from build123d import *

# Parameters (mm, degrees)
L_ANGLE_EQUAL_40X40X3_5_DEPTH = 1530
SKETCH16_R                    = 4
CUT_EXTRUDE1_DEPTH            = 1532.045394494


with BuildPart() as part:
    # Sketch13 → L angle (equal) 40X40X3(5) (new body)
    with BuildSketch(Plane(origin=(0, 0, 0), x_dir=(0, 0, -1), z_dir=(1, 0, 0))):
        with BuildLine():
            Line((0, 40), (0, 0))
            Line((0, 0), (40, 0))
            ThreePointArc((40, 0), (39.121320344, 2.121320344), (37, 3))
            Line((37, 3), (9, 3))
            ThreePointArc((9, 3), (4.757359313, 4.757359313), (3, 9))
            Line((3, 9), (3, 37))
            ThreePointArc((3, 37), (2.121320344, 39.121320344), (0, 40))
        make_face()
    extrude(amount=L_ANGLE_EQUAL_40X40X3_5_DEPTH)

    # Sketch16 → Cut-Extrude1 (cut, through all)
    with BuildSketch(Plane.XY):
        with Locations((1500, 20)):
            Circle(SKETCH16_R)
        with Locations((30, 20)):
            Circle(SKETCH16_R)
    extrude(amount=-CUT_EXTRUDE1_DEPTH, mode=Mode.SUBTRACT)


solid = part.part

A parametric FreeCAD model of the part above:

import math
import FreeCAD as App
import Part
import Sketcher

V = App.Vector

doc = App.newDocument("Part")
body = doc.addObject("PartDesign::Body", "Body")

sketch1 = body.newObject("Sketcher::SketchObject", "Sketch")
sketch1.AttachmentSupport = (doc.getObject("YZ_Plane"), [""])
sketch1.MapMode = "FlatFace"
sketch1.addGeometry([
    Part.LineSegment(V(40, 0, 0), V(0, 0, 0)),
    Part.LineSegment(V(0, 0, 0), V(0, -40, 0)),
    Part.ArcOfCircle(Part.Circle(V(0, -37, 0), V(0, 0, 1), 3), math.radians(-90), math.radians(0)),
    Part.LineSegment(V(3, -37, 0), V(3, -9, 0)),
    Part.ArcOfCircle(Part.Circle(V(9, -9, 0), V(0, 0, 1), 6), math.radians(90), math.radians(180)),
    Part.LineSegment(V(9, -3, 0), V(37, -3, 0)),
    Part.ArcOfCircle(Part.Circle(V(37, 0, 0), V(0, 0, 1), 3), math.radians(-90), math.radians(0)),
], False)
sketch1.addConstraint([
    Sketcher.Constraint("Coincident", 0, 2, 1, 1),
    Sketcher.Constraint("Coincident", 1, 2, 2, 1),
    Sketcher.Constraint("Tangent", 2, 2, 3, 1),
    Sketcher.Constraint("Tangent", 3, 2, 4, 2),
    Sketcher.Constraint("Tangent", 4, 1, 5, 1),
    Sketcher.Constraint("Tangent", 5, 2, 6, 1),
    Sketcher.Constraint("Coincident", 6, 2, 0, 1),
    Sketcher.Constraint("Horizontal", 0),
    Sketcher.Constraint("Vertical", 1),
    Sketcher.Constraint("Vertical", 3),
    Sketcher.Constraint("Horizontal", 5),
    Sketcher.Constraint("Coincident", 0, 2, -1, 1),
    Sketcher.Constraint("Equal", 2, 6),
    Sketcher.Constraint("PointOnObject", 2, 3, -2),
    Sketcher.Constraint("PointOnObject", 6, 3, -1),
    Sketcher.Constraint("Equal", 0, 1),
    Sketcher.Constraint("Radius", 2, 3.0),
    Sketcher.Constraint("Radius", 4, 6.0),
    Sketcher.Constraint("DistanceX", 0, 2, 0, 1, 40.0),
])
pad1 = body.newObject("PartDesign::Pad", "Pad")
pad1.Profile = sketch1
pad1.Length = 1530

sketch2 = body.newObject("Sketcher::SketchObject", "Sketch001")
sketch2.AttachmentSupport = (doc.getObject("XY_Plane"), [""])
sketch2.MapMode = "FlatFace"
sketch2.addGeometry([
    Part.Circle(V(1500, 20, 0), V(0, 0, 1), 4),
    Part.Circle(V(30, 20, 0), V(0, 0, 1), 4),
], False)
sketch2.addConstraint([
    Sketcher.Constraint("Equal", 0, 1),
    Sketcher.Constraint("Horizontal", 0, 3, 1, 3),
    Sketcher.Constraint("Diameter", 0, 8.0),
    Sketcher.Constraint("DistanceX", -1, 1, 0, 3, 1500.0),
    Sketcher.Constraint("DistanceY", -1, 1, 0, 3, 20.0),
    Sketcher.Constraint("DistanceX", -1, 1, 1, 3, 30.0),
])
pocket1 = body.newObject("PartDesign::Pocket", "Pocket")
pocket1.Profile = sketch2
pocket1.Type = "ThroughAll"

doc.recompute()
